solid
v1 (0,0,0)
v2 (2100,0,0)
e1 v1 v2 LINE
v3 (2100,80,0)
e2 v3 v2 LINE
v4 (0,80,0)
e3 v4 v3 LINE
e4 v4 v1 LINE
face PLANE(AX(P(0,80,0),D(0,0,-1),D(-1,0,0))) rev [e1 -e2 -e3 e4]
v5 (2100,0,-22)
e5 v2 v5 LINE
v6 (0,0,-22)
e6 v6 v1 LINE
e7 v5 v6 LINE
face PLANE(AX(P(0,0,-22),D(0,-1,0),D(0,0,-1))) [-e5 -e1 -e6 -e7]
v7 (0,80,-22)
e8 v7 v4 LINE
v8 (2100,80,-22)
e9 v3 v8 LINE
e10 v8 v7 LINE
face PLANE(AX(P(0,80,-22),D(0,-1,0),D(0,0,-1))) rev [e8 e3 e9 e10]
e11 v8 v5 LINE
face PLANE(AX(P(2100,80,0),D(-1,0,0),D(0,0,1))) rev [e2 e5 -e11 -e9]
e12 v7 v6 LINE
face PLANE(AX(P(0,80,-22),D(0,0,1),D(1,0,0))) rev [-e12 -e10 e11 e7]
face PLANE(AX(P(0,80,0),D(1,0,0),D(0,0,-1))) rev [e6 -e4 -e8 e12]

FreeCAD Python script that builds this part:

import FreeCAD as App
import Part
import Sketcher

V = App.Vector
Q = App.Units.Quantity

doc = App.newDocument("Part")
body = doc.addObject("PartDesign::Body", "Body")

# Sketch on XZ plane
sketch1 = body.newObject("Sketcher::SketchObject", "Sketch")
sketch1.AttachmentSupport = (doc.getObject("XZ_Plane"), [""])
sketch1.MapMode = "FlatFace"
sketch1.addGeometry([
    Part.LineSegment(V(0, -22, 0), V(0, 0, 0)),
    Part.LineSegment(V(0, 0, 0), V(2100, 0, 0)),
    Part.LineSegment(V(2100, 0, 0), V(2100, -22, 0)),
    Part.LineSegment(V(2100, -22, 0), V(0, -22, 0)),
], False)
sketch1.addConstraint([
    Sketcher.Constraint("Coincident", 0, 2, 1, 1),
    Sketcher.Constraint("Coincident", 1, 2, 2, 1),
    Sketcher.Constraint("Coincident", 2, 2, 3, 1),
    Sketcher.Constraint("Coincident", 3, 2, 0, 1),
    Sketcher.Constraint("Vertical", 0),
    Sketcher.Constraint("Horizontal", 1),
    Sketcher.Constraint("Vertical", 2),
    Sketcher.Constraint("Horizontal", 3),
    Sketcher.Constraint("Coincident", 0, 2, -1, 1),
    Sketcher.Constraint("DistanceX", 1, 1, 1, 2, Q("2100 mm")),
    Sketcher.Constraint("DistanceY", 0, 1, 0, 2, Q("22 mm")),
])
pad1 = body.newObject("PartDesign::Pad", "Pad")
pad1.Profile = sketch1
pad1.Length = 80
pad1.Reversed = True

doc.recompute()
